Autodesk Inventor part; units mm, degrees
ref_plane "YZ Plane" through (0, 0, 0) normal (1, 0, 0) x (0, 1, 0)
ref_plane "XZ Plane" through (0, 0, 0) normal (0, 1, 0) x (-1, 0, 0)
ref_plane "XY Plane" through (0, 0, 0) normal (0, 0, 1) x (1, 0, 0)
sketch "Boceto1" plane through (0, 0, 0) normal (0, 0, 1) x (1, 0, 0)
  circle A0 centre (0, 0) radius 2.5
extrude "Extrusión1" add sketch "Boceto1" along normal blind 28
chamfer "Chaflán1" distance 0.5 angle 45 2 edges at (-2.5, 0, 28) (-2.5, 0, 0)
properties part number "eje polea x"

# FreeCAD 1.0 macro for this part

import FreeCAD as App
import Part
import Sketcher

V = App.Vector


def edges_at(feature, points):
    """Names of the edges that pass closest to the given points."""
    edges = feature.Shape.Edges
    near = lambda p: min(range(len(edges)), key=lambda i: edges[i].distToShape(Part.Vertex(*p))[0])
    return sorted({f"Edge{near(p) + 1}" for p in points})

doc = App.newDocument("Part")
params = doc.addObject("Spreadsheet::Sheet", "Params")
for row, (alias, value) in enumerate([
    ("sketch1_diameter", "5 mm"),
    ("pad1_length", "28 mm"),
    ("chamfer_size", "0.5 mm"),
], start=1):
    params.set(f"A{row}", alias)
    params.set(f"B{row}", "=" + value)
    params.setAlias(f"B{row}", alias)

body = doc.addObject("PartDesign::Body", "Body")

sketch1 = doc.addObject("Sketcher::SketchObject", "Sketch")
body.addObject(sketch1)
sketch1.AttachmentSupport = (doc.XY_Plane, [""])
sketch1.MapMode = "FlatFace"
sketch1.addGeometry(Part.Circle(V(0, 0, 0), V(0, 0, 1), 2.5), False)
sketch1.addConstraint(Sketcher.Constraint("Coincident", 0, 3, -1, 1))
sketch1.addConstraint(Sketcher.Constraint("Diameter", 0, 5.0))
sketch1.setExpression("Constraints[1]", "Params.sketch1_diameter")
pad1 = doc.addObject("PartDesign::Pad", "Pad")
body.addObject(pad1)
pad1.Profile = sketch1
pad1.setExpression("Length", "Params.pad1_length")
doc.recompute()

chamfer = doc.addObject("PartDesign::Chamfer", "Chamfer")
body.addObject(chamfer)
chamfer.Base = (pad1, edges_at(pad1, [(-2.5, 0, 28), (-2.5, 0, 0)]))
chamfer.setExpression("Size", "Params.chamfer_size")

doc.recompute()
